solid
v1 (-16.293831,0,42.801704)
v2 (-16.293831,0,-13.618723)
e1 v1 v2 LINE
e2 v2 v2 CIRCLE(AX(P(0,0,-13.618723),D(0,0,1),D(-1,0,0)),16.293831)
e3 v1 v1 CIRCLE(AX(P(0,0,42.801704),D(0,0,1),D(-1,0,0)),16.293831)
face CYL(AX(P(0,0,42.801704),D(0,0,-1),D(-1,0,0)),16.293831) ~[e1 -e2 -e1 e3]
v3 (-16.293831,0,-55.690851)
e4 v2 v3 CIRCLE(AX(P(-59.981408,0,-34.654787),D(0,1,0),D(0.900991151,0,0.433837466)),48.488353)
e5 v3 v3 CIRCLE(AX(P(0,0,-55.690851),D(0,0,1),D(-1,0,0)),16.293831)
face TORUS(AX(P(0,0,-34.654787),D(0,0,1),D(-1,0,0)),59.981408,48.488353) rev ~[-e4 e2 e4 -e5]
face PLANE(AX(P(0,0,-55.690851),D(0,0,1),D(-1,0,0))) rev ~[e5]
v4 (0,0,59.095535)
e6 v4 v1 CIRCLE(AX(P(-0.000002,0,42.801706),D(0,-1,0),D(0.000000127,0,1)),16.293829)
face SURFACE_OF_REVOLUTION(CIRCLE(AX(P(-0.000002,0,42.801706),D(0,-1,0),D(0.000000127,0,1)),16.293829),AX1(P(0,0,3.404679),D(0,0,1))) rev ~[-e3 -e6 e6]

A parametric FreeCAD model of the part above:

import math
import FreeCAD as App
import Part
import Sketcher
from FreeCAD import Vector

doc = App.newDocument("Part")
body = doc.addObject("PartDesign::Body", "Body")

sketch1 = body.newObject("Sketcher::SketchObject", "Sketch")
sketch1.AttachmentSupport = (doc.getObject("XZ_Plane"), [""])
sketch1.MapMode = "FlatFace"
sketch1.addGeometry(Part.ArcOfCircle(Part.Circle(Vector(0, 43, 0), Vector(0, 0, 1), 16), math.radians(90), math.radians(180)), False)
sketch1.addGeometry(Part.LineSegment(Vector(-16, 43, 0), Vector(-16, -14, 0)), False)
sketch1.addGeometry(Part.ArcOfCircle(Part.Circle(Vector(-60, -35, 0), Vector(0, 0, 1), 48), math.radians(-26), math.radians(26)), False)
sketch1.addGeometry(Part.LineSegment(Vector(-16, -56, 0), Vector(0, -56, 0)), False)
sketch1.addGeometry(Part.LineSegment(Vector(0, -56, 0), Vector(0, 59, 0)), False)
sketch1.addConstraint(Sketcher.Constraint("Tangent", 0, 2, 1, 1))
sketch1.addConstraint(Sketcher.Constraint("Coincident", 1, 2, 2, 2))
sketch1.addConstraint(Sketcher.Constraint("Coincident", 2, 1, 3, 1))
sketch1.addConstraint(Sketcher.Constraint("Coincident", 3, 2, 4, 1))
sketch1.addConstraint(Sketcher.Constraint("Coincident", 4, 2, 0, 1))
sketch1.addConstraint(Sketcher.Constraint("Vertical", 1))
sketch1.addConstraint(Sketcher.Constraint("Horizontal", 3))
sketch1.addConstraint(Sketcher.Constraint("Vertical", 4))
sketch1.addConstraint(Sketcher.Constraint("PointOnObject", 3, 2, -2))
sketch1.addConstraint(Sketcher.Constraint("Vertical", 1, 2, 2, 1))
sketch1.addConstraint(Sketcher.Constraint("Radius", 0, 16.293829))
sketch1.addConstraint(Sketcher.Constraint("Radius", 2, 48.488353))
sketch1.addConstraint(Sketcher.Constraint("DistanceX", 3, 1, 3, 2, 16.293831))
sketch1.addConstraint(Sketcher.Constraint("DistanceY", 1, 2, 1, 1, 56.420427))
sketch1.addConstraint(Sketcher.Constraint("DistanceY", 4, 1, 4, 2, 114.786386))
sketch1.addConstraint(Sketcher.Constraint("DistanceY", 2, 1, -1, 1, 55.690851))
revolution = body.newObject("PartDesign::Revolution", "Revolution")
revolution.Profile = sketch1
revolution.ReferenceAxis = (sketch1, ["V_Axis"])
revolution.Angle = 360

doc.recompute()
